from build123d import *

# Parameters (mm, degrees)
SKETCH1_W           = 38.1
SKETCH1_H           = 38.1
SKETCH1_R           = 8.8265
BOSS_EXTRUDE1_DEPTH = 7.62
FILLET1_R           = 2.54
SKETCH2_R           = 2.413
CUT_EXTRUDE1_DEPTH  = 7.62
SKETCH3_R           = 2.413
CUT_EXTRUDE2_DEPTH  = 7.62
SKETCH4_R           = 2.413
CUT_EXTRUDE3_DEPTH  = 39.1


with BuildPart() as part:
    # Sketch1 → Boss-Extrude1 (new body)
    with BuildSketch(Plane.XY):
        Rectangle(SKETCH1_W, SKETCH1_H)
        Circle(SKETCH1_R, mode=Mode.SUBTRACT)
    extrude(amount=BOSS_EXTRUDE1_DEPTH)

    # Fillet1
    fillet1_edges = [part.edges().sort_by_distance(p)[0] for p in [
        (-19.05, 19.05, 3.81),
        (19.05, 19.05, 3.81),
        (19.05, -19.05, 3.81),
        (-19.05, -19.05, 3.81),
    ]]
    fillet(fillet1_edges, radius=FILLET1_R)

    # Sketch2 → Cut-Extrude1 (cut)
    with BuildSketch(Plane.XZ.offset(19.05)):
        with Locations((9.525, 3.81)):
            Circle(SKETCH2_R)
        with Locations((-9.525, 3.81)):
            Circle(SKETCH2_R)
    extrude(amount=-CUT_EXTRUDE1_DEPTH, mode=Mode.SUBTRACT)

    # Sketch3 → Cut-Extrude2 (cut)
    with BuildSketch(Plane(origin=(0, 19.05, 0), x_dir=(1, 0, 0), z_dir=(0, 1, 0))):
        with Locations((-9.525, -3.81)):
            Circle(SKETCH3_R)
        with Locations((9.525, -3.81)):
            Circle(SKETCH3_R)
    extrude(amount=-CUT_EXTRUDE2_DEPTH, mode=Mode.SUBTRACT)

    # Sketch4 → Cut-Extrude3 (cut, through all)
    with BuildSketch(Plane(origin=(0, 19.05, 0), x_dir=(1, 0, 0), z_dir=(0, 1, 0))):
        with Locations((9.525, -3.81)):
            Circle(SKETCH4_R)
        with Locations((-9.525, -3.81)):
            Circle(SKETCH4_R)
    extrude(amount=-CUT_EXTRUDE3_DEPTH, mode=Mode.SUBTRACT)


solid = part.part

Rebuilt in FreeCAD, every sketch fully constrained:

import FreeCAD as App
import Part
import Sketcher
from FreeCAD import Vector
Q = App.Units.Quantity


def edges_at(feature, points):
    """Names of the edges that pass closest to the given points."""
    edges = feature.Shape.Edges
    near = lambda p: min(range(len(edges)), key=lambda i: edges[i].distToShape(Part.Vertex(*p))[0])
    return sorted({f"Edge{near(p) + 1}" for p in points})

doc = App.newDocument("Part")
body = doc.addObject("PartDesign::Body", "Body")

# Sketch on XY plane
sketch1 = body.newObject("Sketcher::SketchObject", "Sketch")
sketch1.AttachmentSupport = (doc.getObject("XY_Plane"), [""])
sketch1.MapMode = "FlatFace"
sketch1.addGeometry([
    Part.LineSegment(Vector(-19, 19, 0), Vector(-19, -19, 0)),  # 0
    Part.LineSegment(Vector(-19, -19, 0), Vector(19, -19, 0)),  # 1
    Part.LineSegment(Vector(19, -19, 0), Vector(19, 19, 0)),  # 2
    Part.LineSegment(Vector(19, 19, 0), Vector(-19, 19, 0)),  # 3
    Part.Circle(Vector(0, 0, 0), Vector(0, 0, 1), 9),  # 4
], False)
sketch1.addConstraint([
    Sketcher.Constraint("Coincident", 0, 2, 1, 1),
    Sketcher.Constraint("Coincident", 1, 2, 2, 1),
    Sketcher.Constraint("Coincident", 2, 2, 3, 1),
    Sketcher.Constraint("Coincident", 3, 2, 0, 1),
    Sketcher.Constraint("Vertical", 0),
    Sketcher.Constraint("Horizontal", 1),
    Sketcher.Constraint("Vertical", 2),
    Sketcher.Constraint("Horizontal", 3),
    Sketcher.Constraint("Coincident", 4, 3, -1, 1),
    Sketcher.Constraint("Symmetric", 0, 2, 2, 2, -1, 1),
    Sketcher.Constraint("Equal", 3, 0),
    Sketcher.Constraint("Diameter", 4, Q("0.695 in")),
    Sketcher.Constraint("DistanceX", 1, 1, 1, 2, Q("1.5 in")),
])
pad1 = body.newObject("PartDesign::Pad", "Pad")
pad1.Profile = sketch1
pad1.Length = Q("0.3 in")
doc.recompute()

fillet = body.newObject("PartDesign::Fillet", "Fillet")
fillet.Base = (pad1, edges_at(pad1, [
    (-19.05, 19.05, 3.81),
    (19.05, 19.05, 3.81),
    (19.05, -19.05, 3.81),
    (-19.05, -19.05, 3.81),
]))
fillet.Radius = Q("0.1 in")

# Sketch on XZ plane
sketch2 = body.newObject("Sketcher::SketchObject", "Sketch001")
sketch2.AttachmentSupport = (doc.getObject("XZ_Plane"), [""])
sketch2.MapMode = "FlatFace"
sketch2.AttachmentOffset = App.Placement(Vector(0, 0, 0.75 * 25.4), App.Rotation())
sketch2.addGeometry([
    Part.Circle(Vector(9.5, 3.8, 0), Vector(0, 0, 1), 2.4),
    Part.Circle(Vector(-9.5, 3.8, 0), Vector(0, 0, 1), 2.4),
], False)
sketch2.addConstraint([
    Sketcher.Constraint("Equal", 0, 1),
    Sketcher.Constraint("Symmetric", 0, 3, 1, 3, -2),
    Sketcher.Constraint("Diameter", 0, Q("0.19 in")),
    Sketcher.Constraint("DistanceY", -1, 1, 0, 3, Q("0.15 in")),
    Sketcher.Constraint("DistanceX", 1, 3, 0, 3, Q("0.75 in")),
])
pocket1 = body.newObject("PartDesign::Pocket", "Pocket")
pocket1.Profile = sketch2
pocket1.Length = Q("0.3 in")

# Sketch on XZ plane
sketch3 = body.newObject("Sketcher::SketchObject", "Sketch002")
sketch3.AttachmentSupport = (doc.getObject("XZ_Plane"), [""])
sketch3.MapMode = "FlatFace"
sketch3.AttachmentOffset = App.Placement(Vector(0, 0, -0.75 * 25.4), App.Rotation())
sketch3.addGeometry([
    Part.Circle(Vector(-9.5, 3.8, 0), Vector(0, 0, 1), 2.4),
    Part.Circle(Vector(9.5, 3.8, 0), Vector(0, 0, 1), 2.4),
], False)
sketch3.addConstraint([
    Sketcher.Constraint("Equal", 0, 1),
    Sketcher.Constraint("Symmetric", 0, 3, 1, 3, -2),
    Sketcher.Constraint("Diameter", 0, Q("0.19 in")),
    Sketcher.Constraint("DistanceY", -1, 1, 0, 3, Q("0.15 in")),
    Sketcher.Constraint("DistanceX", 0, 3, 1, 3, Q("0.75 in")),
])
pocket2 = body.newObject("PartDesign::Pocket", "Pocket001")
pocket2.Profile = sketch3
pocket2.Length = Q("0.3 in")
pocket2.Reversed = True

# Sketch on XZ plane
sketch4 = body.newObject("Sketcher::SketchObject", "Sketch003")
sketch4.AttachmentSupport = (doc.getObject("XZ_Plane"), [""])
sketch4.MapMode = "FlatFace"
sketch4.AttachmentOffset = App.Placement(Vector(0, 0, -0.75 * 25.4), App.Rotation())
sketch4.addGeometry([
    Part.Circle(Vector(9.5, 3.8, 0), Vector(0, 0, 1), 2.4),
    Part.Circle(Vector(-9.5, 3.8, 0), Vector(0, 0, 1), 2.4),
], False)
sketch4.addConstraint([
    Sketcher.Constraint("Equal", 0, 1),
    Sketcher.Constraint("Symmetric", 0, 3, 1, 3, -2),
    Sketcher.Constraint("Diameter", 0, Q("0.19 in")),
    Sketcher.Constraint("DistanceY", -1, 1, 0, 3, Q("0.15 in")),
    Sketcher.Constraint("DistanceX", 1, 3, 0, 3, Q("0.75 in")),
])
pocket3 = body.newObject("PartDesign::Pocket", "Pocket002")
pocket3.Profile = sketch4
pocket3.Type = "ThroughAll"
pocket3.Reversed = True

doc.recompute()
